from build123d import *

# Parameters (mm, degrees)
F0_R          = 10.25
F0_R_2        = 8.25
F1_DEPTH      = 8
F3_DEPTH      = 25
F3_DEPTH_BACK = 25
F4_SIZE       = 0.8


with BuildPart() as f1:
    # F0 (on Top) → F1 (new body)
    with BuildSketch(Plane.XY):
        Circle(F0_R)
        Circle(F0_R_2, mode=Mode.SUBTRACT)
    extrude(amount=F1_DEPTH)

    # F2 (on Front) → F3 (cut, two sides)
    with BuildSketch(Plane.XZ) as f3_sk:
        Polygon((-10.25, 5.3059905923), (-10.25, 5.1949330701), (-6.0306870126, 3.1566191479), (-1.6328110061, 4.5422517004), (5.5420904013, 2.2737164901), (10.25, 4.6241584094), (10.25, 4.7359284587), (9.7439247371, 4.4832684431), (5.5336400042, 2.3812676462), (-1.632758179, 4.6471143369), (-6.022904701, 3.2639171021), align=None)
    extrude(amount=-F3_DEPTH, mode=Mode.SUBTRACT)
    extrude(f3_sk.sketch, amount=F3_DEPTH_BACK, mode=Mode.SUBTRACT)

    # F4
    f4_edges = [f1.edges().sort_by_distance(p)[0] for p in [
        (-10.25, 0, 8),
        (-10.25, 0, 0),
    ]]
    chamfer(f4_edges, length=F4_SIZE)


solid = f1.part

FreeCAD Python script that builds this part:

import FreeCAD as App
import Part
import Sketcher
from FreeCAD import Vector


def edges_at(feature, points):
    """Names of the edges that pass closest to the given points."""
    edges = feature.Shape.Edges
    near = lambda p: min(range(len(edges)), key=lambda i: edges[i].distToShape(Part.Vertex(*p))[0])
    return sorted({f"Edge{near(p) + 1}" for p in points})

doc = App.newDocument("Part")
body = doc.addObject("PartDesign::Body", "Body")
body.AllowCompound = True

# Sketch on XY plane
sketch1 = body.newObject("Sketcher::SketchObject", "Sketch")
sketch1.AttachmentSupport = (doc.getObject("XY_Plane"), [""])
sketch1.MapMode = "FlatFace"
sketch1.addGeometry(Part.Circle(Vector(0, 0, 0), Vector(0, 0, 1), 10), False)
sketch1.addGeometry(Part.Circle(Vector(0, 0, 0), Vector(0, 0, 1), 8), False)
sketch1.addConstraint(Sketcher.Constraint("Coincident", 0, 3, -1, 1))
sketch1.addConstraint(Sketcher.Constraint("Coincident", 1, 3, -1, 1))
sketch1.addConstraint(Sketcher.Constraint("Diameter", 0, 20.5))
sketch1.addConstraint(Sketcher.Constraint("Diameter", 1, 16.5))
pad1 = body.newObject("PartDesign::Pad", "Pad")
pad1.Profile = sketch1
pad1.Length = 8

# Sketch on XZ plane
sketch2 = body.newObject("Sketcher::SketchObject", "Sketch001")
sketch2.AttachmentSupport = (doc.getObject("XZ_Plane"), [""])
sketch2.MapMode = "FlatFace"
sketch2.addGeometry(Part.LineSegment(Vector(-10.25, 5.31, 0), Vector(-10.25, 5.19, 0)), False)
sketch2.addGeometry(Part.LineSegment(Vector(-10.25, 5.19, 0), Vector(-6.03, 3.16, 0)), False)
sketch2.addGeometry(Part.LineSegment(Vector(-6.03, 3.16, 0), Vector(-1.63, 4.54, 0)), False)
sketch2.addGeometry(Part.LineSegment(Vector(-1.63, 4.54, 0), Vector(5.54, 2.27, 0)), False)
sketch2.addGeometry(Part.LineSegment(Vector(5.54, 2.27, 0), Vector(10.25, 4.62, 0)), False)
sketch2.addGeometry(Part.LineSegment(Vector(10.25, 4.62, 0), Vector(10.25, 4.74, 0)), False)
sketch2.addGeometry(Part.LineSegment(Vector(10.25, 4.74, 0), Vector(9.74, 4.48, 0)), False)
sketch2.addGeometry(Part.LineSegment(Vector(9.74, 4.48, 0), Vector(5.53, 2.38, 0)), False)
sketch2.addGeometry(Part.LineSegment(Vector(5.53, 2.38, 0), Vector(-1.63, 4.65, 0)), False)
sketch2.addGeometry(Part.LineSegment(Vector(-1.63, 4.65, 0), Vector(-6.02, 3.26, 0)), False)
sketch2.addGeometry(Part.LineSegment(Vector(-6.02, 3.26, 0), Vector(-10.25, 5.31, 0)), False)
sketch2.addConstraint(Sketcher.Constraint("Coincident", 0, 2, 1, 1))
sketch2.addConstraint(Sketcher.Constraint("Coincident", 1, 2, 2, 1))
sketch2.addConstraint(Sketcher.Constraint("Coincident", 2, 2, 3, 1))
sketch2.addConstraint(Sketcher.Constraint("Coincident", 3, 2, 4, 1))
sketch2.addConstraint(Sketcher.Constraint("Coincident", 4, 2, 5, 1))
sketch2.addConstraint(Sketcher.Constraint("Coincident", 5, 2, 6, 1))
sketch2.addConstraint(Sketcher.Constraint("Coincident", 6, 2, 7, 1))
sketch2.addConstraint(Sketcher.Constraint("Coincident", 7, 2, 8, 1))
sketch2.addConstraint(Sketcher.Constraint("Coincident", 8, 2, 9, 1))
sketch2.addConstraint(Sketcher.Constraint("Coincident", 9, 2, 10, 1))
sketch2.addConstraint(Sketcher.Constraint("Coincident", 10, 2, 0, 1))
sketch2.addConstraint(Sketcher.Constraint("Vertical", 0))
sketch2.addConstraint(Sketcher.Constraint("Vertical", 5))
sketch2.addConstraint(Sketcher.Constraint("Parallel", 4, 6))
sketch2.addConstraint(Sketcher.Constraint("Parallel", 6, 7))
sketch2.addConstraint(Sketcher.Constraint("Parallel", 3, 8))
sketch2.addConstraint(Sketcher.Constraint("Parallel", 2, 9))
sketch2.addConstraint(Sketcher.Constraint("Parallel", 1, 10))
sketch2.addConstraint(Sketcher.Constraint("DistanceX", 0, 2, 4, 2, 20.5))
sketch2.addConstraint(Sketcher.Constraint("DistanceX", 0, 2, -1, 1, 10.25))
sketch2.addConstraint(Sketcher.Constraint("DistanceY", 7, 2, 6, 2, 2.102001))
sketch2.addConstraint(Sketcher.Constraint("DistanceY", 5, 1, 5, 2, 0.11177))
sketch2.addConstraint(Sketcher.Constraint("DistanceX", 2, 2, 3, 2, 7.174901))
sketch2.addConstraint(Sketcher.Constraint("DistanceX", 8, 2, 7, 2, 7.166398))
sketch2.addConstraint(Sketcher.Constraint("Distance", 3, 7.524989))
sketch2.addConstraint(Sketcher.Constraint("Distance", 6, 0.565641))
sketch2.addConstraint(Sketcher.Constraint("DistanceY", 0, 2, 0, 1, 0.111058))
sketch2.addConstraint(Sketcher.Constraint("DistanceY", -1, 1, 1, 2, 3.156619))
sketch2.addConstraint(Sketcher.Constraint("DistanceX", 2, 2, -1, 1, 1.632811))
sketch2.addConstraint(Sketcher.Constraint("DistanceY", -1, 1, 2, 2, 4.542252))
sketch2.addConstraint(Sketcher.Constraint("DistanceY", -1, 1, 4, 2, 4.624158))
sketch2.addConstraint(Sketcher.Constraint("DistanceY", -1, 1, 10, 2, 5.305991))
sketch2.addConstraint(Sketcher.Constraint("DistanceX", 1, 2, 6, 2, 15.774612))
pocket1 = body.newObject("PartDesign::Pocket", "Pocket")
pocket1.Profile = sketch2
pocket1.Type = "ThroughAll"
pocket1.Midplane = True
doc.recompute()

chamfer = body.newObject("PartDesign::Chamfer", "Chamfer")
chamfer.Base = (pocket1, edges_at(pocket1, [(-10.25, 0, 8), (-10.25, 0, 0)]))
chamfer.Size = 0.8

doc.recompute()
